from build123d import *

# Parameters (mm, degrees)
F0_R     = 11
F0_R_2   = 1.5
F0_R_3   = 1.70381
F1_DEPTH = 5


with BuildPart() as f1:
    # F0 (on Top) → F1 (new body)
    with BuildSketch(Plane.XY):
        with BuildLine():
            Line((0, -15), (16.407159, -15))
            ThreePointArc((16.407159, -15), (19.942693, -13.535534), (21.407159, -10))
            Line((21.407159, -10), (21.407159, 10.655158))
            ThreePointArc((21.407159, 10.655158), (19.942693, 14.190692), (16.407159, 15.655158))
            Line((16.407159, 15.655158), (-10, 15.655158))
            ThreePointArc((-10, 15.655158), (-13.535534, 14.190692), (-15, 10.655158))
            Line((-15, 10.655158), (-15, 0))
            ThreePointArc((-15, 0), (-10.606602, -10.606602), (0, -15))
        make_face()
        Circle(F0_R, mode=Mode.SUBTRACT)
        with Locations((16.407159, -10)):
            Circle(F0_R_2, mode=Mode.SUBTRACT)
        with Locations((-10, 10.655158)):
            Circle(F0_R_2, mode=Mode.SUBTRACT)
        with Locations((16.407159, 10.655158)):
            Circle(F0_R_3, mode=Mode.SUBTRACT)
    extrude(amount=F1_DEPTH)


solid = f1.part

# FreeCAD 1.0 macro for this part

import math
import FreeCAD as App
import Part
import Sketcher
Q = App.Units.Quantity

doc = App.newDocument("Part")
body = doc.addObject("PartDesign::Body", "Body")

# Sketch on XY plane
sketch1 = doc.addObject("Sketcher::SketchObject", "Sketch")
body.addObject(sketch1)
sketch1.AttachmentSupport = (doc.XY_Plane, [""])
sketch1.MapMode = "FlatFace"
sketch1.addGeometry([
    Part.LineSegment(App.Vector(0, -15, 0), App.Vector(16.4, -15, 0)),  # 0
    Part.ArcOfCircle(Part.Circle(App.Vector(16.4, -10, 0), App.Vector(0, 0, 1), 5), math.radians(-90), math.radians(0)),  # 1
    Part.LineSegment(App.Vector(21.4, -10, 0), App.Vector(21.4, 10.7, 0)),  # 2
    Part.ArcOfCircle(Part.Circle(App.Vector(16.4, 10.7, 0), App.Vector(0, 0, 1), 5), math.radians(0), math.radians(90)),  # 3
    Part.LineSegment(App.Vector(16.4, 15.7, 0), App.Vector(-10, 15.7, 0)),  # 4
    Part.ArcOfCircle(Part.Circle(App.Vector(-10, 10.7, 0), App.Vector(0, 0, 1), 5), math.radians(90), math.radians(180)),  # 5
    Part.LineSegment(App.Vector(-15, 10.7, 0), App.Vector(-15, 0, 0)),  # 6
    Part.ArcOfCircle(Part.Circle(App.Vector(0, 0, 0), App.Vector(0, 0, 1), 15), math.radians(180), math.radians(270)),  # 7
    Part.Circle(App.Vector(0, 0, 0), App.Vector(0, 0, 1), 11),  # 8
    Part.Circle(App.Vector(16.4, -10, 0), App.Vector(0, 0, 1), 1.5),  # 9
    Part.Circle(App.Vector(-10, 10.7, 0), App.Vector(0, 0, 1), 1.5),  # 10
    Part.Circle(App.Vector(16.4, 10.7, 0), App.Vector(0, 0, 1), 1.7),  # 11
], False)
sketch1.addConstraint([
    Sketcher.Constraint("Tangent", 0, 2, 1, 1),
    Sketcher.Constraint("Tangent", 1, 2, 2, 1),
    Sketcher.Constraint("Tangent", 2, 2, 3, 1),
    Sketcher.Constraint("Tangent", 3, 2, 4, 1),
    Sketcher.Constraint("Tangent", 4, 2, 5, 1),
    Sketcher.Constraint("Tangent", 5, 2, 6, 1),
    Sketcher.Constraint("Tangent", 6, 2, 7, 1),
    Sketcher.Constraint("Tangent", 7, 2, 0, 1),
    Sketcher.Constraint("Horizontal", 0),
    Sketcher.Constraint("Vertical", 2),
    Sketcher.Constraint("Horizontal", 4),
    Sketcher.Constraint("Vertical", 6),
    Sketcher.Constraint("Coincident", 7, 3, -1, 1),
    Sketcher.Constraint("Coincident", 8, 3, -1, 1),
    Sketcher.Constraint("Coincident", 9, 3, 1, 3),
    Sketcher.Constraint("Coincident", 10, 3, 5, 3),
    Sketcher.Constraint("Coincident", 11, 3, 3, 3),
    Sketcher.Constraint("Equal", 1, 3),
    Sketcher.Constraint("Equal", 3, 5),
    Sketcher.Constraint("Equal", 9, 10),
    Sketcher.Constraint("Diameter", 8, Q("22 mm")),
    Sketcher.Constraint("Diameter", 9, Q("3 mm")),
    Sketcher.Constraint("Radius", 1, Q("5 mm")),
    Sketcher.Constraint("Radius", 7, Q("14.999999 mm")),
    Sketcher.Constraint("Diameter", 11, Q("3.40762 mm")),
    Sketcher.Constraint("DistanceX", 0, 1, 0, 2, Q("16.407159 mm")),
    Sketcher.Constraint("DistanceY", 2, 1, 2, 2, Q("20.655158 mm")),
])
pad1 = doc.addObject("PartDesign::Pad", "Pad")
body.addObject(pad1)
pad1.Profile = sketch1
pad1.Length = 5

doc.recompute()
